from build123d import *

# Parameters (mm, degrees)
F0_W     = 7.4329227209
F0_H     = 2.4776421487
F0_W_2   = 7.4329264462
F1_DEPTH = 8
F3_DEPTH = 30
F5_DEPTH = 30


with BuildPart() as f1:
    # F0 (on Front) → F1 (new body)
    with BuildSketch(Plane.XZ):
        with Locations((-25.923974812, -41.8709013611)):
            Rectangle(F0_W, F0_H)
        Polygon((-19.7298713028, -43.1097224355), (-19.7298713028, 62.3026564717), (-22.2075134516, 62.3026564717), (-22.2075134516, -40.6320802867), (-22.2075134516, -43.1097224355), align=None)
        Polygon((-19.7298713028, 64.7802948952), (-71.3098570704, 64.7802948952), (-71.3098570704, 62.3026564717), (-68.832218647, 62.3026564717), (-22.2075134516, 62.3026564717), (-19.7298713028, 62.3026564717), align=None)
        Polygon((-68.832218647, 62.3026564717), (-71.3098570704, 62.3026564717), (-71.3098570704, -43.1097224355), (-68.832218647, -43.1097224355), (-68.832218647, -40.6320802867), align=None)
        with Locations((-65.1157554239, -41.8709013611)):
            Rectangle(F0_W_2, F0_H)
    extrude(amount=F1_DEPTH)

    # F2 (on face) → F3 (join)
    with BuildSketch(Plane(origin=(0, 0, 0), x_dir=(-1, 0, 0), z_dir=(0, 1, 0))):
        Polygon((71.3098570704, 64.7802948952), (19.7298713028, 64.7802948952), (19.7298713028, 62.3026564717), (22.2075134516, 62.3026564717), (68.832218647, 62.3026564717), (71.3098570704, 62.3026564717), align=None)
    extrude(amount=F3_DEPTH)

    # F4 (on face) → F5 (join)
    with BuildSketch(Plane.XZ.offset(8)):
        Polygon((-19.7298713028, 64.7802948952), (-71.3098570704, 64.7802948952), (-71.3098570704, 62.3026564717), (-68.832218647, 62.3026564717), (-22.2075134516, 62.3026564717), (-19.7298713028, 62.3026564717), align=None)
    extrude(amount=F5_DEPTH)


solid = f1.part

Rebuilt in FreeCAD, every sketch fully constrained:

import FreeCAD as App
import Part
import Sketcher
from FreeCAD import Vector

doc = App.newDocument("Part")
body = doc.addObject("PartDesign::Body", "Body")

sketch1 = doc.addObject("Sketcher::SketchObject", "Sketch")
body.addObject(sketch1)
sketch1.AttachmentSupport = (doc.XZ_Plane, [""])
sketch1.MapMode = "FlatFace"
sketch1.addGeometry(Part.LineSegment(Vector(-29.6, -40.6, 0), Vector(-29.6, -43.1, 0)), False)
sketch1.addGeometry(Part.LineSegment(Vector(-29.6, -43.1, 0), Vector(-22.2, -43.1, 0)), False)
sketch1.addGeometry(Part.LineSegment(Vector(-22.2, -43.1, 0), Vector(-19.7, -43.1, 0)), False)
sketch1.addGeometry(Part.LineSegment(Vector(-19.7, -43.1, 0), Vector(-19.7, 64.8, 0)), False)
sketch1.addGeometry(Part.LineSegment(Vector(-19.7, 64.8, 0), Vector(-71.3, 64.8, 0)), False)
sketch1.addGeometry(Part.LineSegment(Vector(-71.3, 64.8, 0), Vector(-71.3, -43.1, 0)), False)
sketch1.addGeometry(Part.LineSegment(Vector(-71.3, -43.1, 0), Vector(-68.8, -43.1, 0)), False)
sketch1.addGeometry(Part.LineSegment(Vector(-68.8, -43.1, 0), Vector(-61.4, -43.1, 0)), False)
sketch1.addGeometry(Part.LineSegment(Vector(-61.4, -43.1, 0), Vector(-61.4, -40.6, 0)), False)
sketch1.addGeometry(Part.LineSegment(Vector(-61.4, -40.6, 0), Vector(-68.8, -40.6, 0)), False)
sketch1.addGeometry(Part.LineSegment(Vector(-68.8, -40.6, 0), Vector(-68.8, 62.3, 0)), False)
sketch1.addGeometry(Part.LineSegment(Vector(-68.8, 62.3, 0), Vector(-22.2, 62.3, 0)), False)
sketch1.addGeometry(Part.LineSegment(Vector(-22.2, 62.3, 0), Vector(-22.2, -40.6, 0)), False)
sketch1.addGeometry(Part.LineSegment(Vector(-22.2, -40.6, 0), Vector(-29.6, -40.6, 0)), False)
sketch1.addConstraint(Sketcher.Constraint("Coincident", 0, 2, 1, 1))
sketch1.addConstraint(Sketcher.Constraint("Coincident", 1, 2, 2, 1))
sketch1.addConstraint(Sketcher.Constraint("Coincident", 2, 2, 3, 1))
sketch1.addConstraint(Sketcher.Constraint("Coincident", 3, 2, 4, 1))
sketch1.addConstraint(Sketcher.Constraint("Coincident", 4, 2, 5, 1))
sketch1.addConstraint(Sketcher.Constraint("Coincident", 5, 2, 6, 1))
sketch1.addConstraint(Sketcher.Constraint("Coincident", 6, 2, 7, 1))
sketch1.addConstraint(Sketcher.Constraint("Coincident", 7, 2, 8, 1))
sketch1.addConstraint(Sketcher.Constraint("Coincident", 8, 2, 9, 1))
sketch1.addConstraint(Sketcher.Constraint("Coincident", 9, 2, 10, 1))
sketch1.addConstraint(Sketcher.Constraint("Coincident", 10, 2, 11, 1))
sketch1.addConstraint(Sketcher.Constraint("Coincident", 11, 2, 12, 1))
sketch1.addConstraint(Sketcher.Constraint("Coincident", 12, 2, 13, 1))
sketch1.addConstraint(Sketcher.Constraint("Coincident", 13, 2, 0, 1))
sketch1.addConstraint(Sketcher.Constraint("Vertical", 0))
sketch1.addConstraint(Sketcher.Constraint("Horizontal", 1))
sketch1.addConstraint(Sketcher.Constraint("Horizontal", 2))
sketch1.addConstraint(Sketcher.Constraint("Vertical", 3))
sketch1.addConstraint(Sketcher.Constraint("Horizontal", 4))
sketch1.addConstraint(Sketcher.Constraint("Vertical", 5))
sketch1.addConstraint(Sketcher.Constraint("Horizontal", 6))
sketch1.addConstraint(Sketcher.Constraint("Horizontal", 7))
sketch1.addConstraint(Sketcher.Constraint("Vertical", 8))
sketch1.addConstraint(Sketcher.Constraint("Horizontal", 9))
sketch1.addConstraint(Sketcher.Constraint("Vertical", 10))
sketch1.addConstraint(Sketcher.Constraint("Horizontal", 11))
sketch1.addConstraint(Sketcher.Constraint("Vertical", 12))
sketch1.addConstraint(Sketcher.Constraint("Horizontal", 13))
sketch1.addConstraint(Sketcher.Constraint("Horizontal", 2, 2, 5, 2))
sketch1.addConstraint(Sketcher.Constraint("Horizontal", 9, 2, 12, 2))
sketch1.addConstraint(Sketcher.Constraint("Vertical", 6, 2, 9, 2))
sketch1.addConstraint(Sketcher.Constraint("Vertical", 1, 2, 11, 2))
sketch1.addConstraint(Sketcher.Constraint("Equal", 2, 0))
sketch1.addConstraint(Sketcher.Constraint("DistanceX", 6, 1, 6, 2, 2.477638))
sketch1.addConstraint(Sketcher.Constraint("DistanceX", 1, 1, 1, 2, 7.432923))
sketch1.addConstraint(Sketcher.Constraint("DistanceX", 2, 1, 2, 2, 2.477642))
sketch1.addConstraint(Sketcher.Constraint("DistanceX", 4, 2, 4, 1, 51.579986))
sketch1.addConstraint(Sketcher.Constraint("DistanceX", 7, 1, 7, 2, 7.432926))
sketch1.addConstraint(Sketcher.Constraint("DistanceY", 3, 1, 3, 2, 107.890017))
sketch1.addConstraint(Sketcher.Constraint("DistanceY", 10, 1, 10, 2, 102.934737))
sketch1.addConstraint(Sketcher.Constraint("DistanceX", 2, 2, -1, 1, 19.729871))
sketch1.addConstraint(Sketcher.Constraint("DistanceY", 8, 2, -1, 1, 40.63208))
pad1 = doc.addObject("PartDesign::Pad", "Pad")
body.addObject(pad1)
pad1.Profile = sketch1
pad1.Length = 8

sketch2 = doc.addObject("Sketcher::SketchObject", "Sketch001")
body.addObject(sketch2)
sketch2.AttachmentSupport = (doc.XZ_Plane, [""])
sketch2.MapMode = "FlatFace"
sketch2.addGeometry(Part.LineSegment(Vector(-71.3, 64.8, 0), Vector(-19.7, 64.8, 0)), False)
sketch2.addGeometry(Part.LineSegment(Vector(-19.7, 64.8, 0), Vector(-19.7, 62.3, 0)), False)
sketch2.addGeometry(Part.LineSegment(Vector(-19.7, 62.3, 0), Vector(-71.3, 62.3, 0)), False)
sketch2.addGeometry(Part.LineSegment(Vector(-71.3, 62.3, 0), Vector(-71.3, 64.8, 0)), False)
sketch2.addConstraint(Sketcher.Constraint("Coincident", 0, 2, 1, 1))
sketch2.addConstraint(Sketcher.Constraint("Coincident", 1, 2, 2, 1))
sketch2.addConstraint(Sketcher.Constraint("Coincident", 2, 2, 3, 1))
sketch2.addConstraint(Sketcher.Constraint("Coincident", 3, 2, 0, 1))
sketch2.addConstraint(Sketcher.Constraint("Horizontal", 0))
sketch2.addConstraint(Sketcher.Constraint("Vertical", 1))
sketch2.addConstraint(Sketcher.Constraint("Horizontal", 2))
sketch2.addConstraint(Sketcher.Constraint("Vertical", 3))
sketch2.addConstraint(Sketcher.Constraint("DistanceY", 1, 2, 1, 1, 2.477638))
sketch2.addConstraint(Sketcher.Constraint("DistanceX", 0, 1, 0, 2, 51.579986))
sketch2.addConstraint(Sketcher.Constraint("DistanceX", 0, 2, -1, 1, 19.729871))
sketch2.addConstraint(Sketcher.Constraint("DistanceY", -1, 1, 0, 2, 64.780295))
pad2 = doc.addObject("PartDesign::Pad", "Pad001")
body.addObject(pad2)
pad2.Profile = sketch2
pad2.Length = 30
pad2.Reversed = True

sketch3 = doc.addObject("Sketcher::SketchObject", "Sketch002")
body.addObject(sketch3)
sketch3.AttachmentSupport = (doc.XZ_Plane, [""])
sketch3.MapMode = "FlatFace"
sketch3.AttachmentOffset = App.Placement(Vector(0, 0, 8), App.Rotation())
sketch3.addGeometry(Part.LineSegment(Vector(-19.7, 64.8, 0), Vector(-71.3, 64.8, 0)), False)
sketch3.addGeometry(Part.LineSegment(Vector(-71.3, 64.8, 0), Vector(-71.3, 62.3, 0)), False)
sketch3.addGeometry(Part.LineSegment(Vector(-71.3, 62.3, 0), Vector(-19.7, 62.3, 0)), False)
sketch3.addGeometry(Part.LineSegment(Vector(-19.7, 62.3, 0), Vector(-19.7, 64.8, 0)), False)
sketch3.addConstraint(Sketcher.Constraint("Coincident", 0, 2, 1, 1))
sketch3.addConstraint(Sketcher.Constraint("Coincident", 1, 2, 2, 1))
sketch3.addConstraint(Sketcher.Constraint("Coincident", 2, 2, 3, 1))
sketch3.addConstraint(Sketcher.Constraint("Coincident", 3, 2, 0, 1))
sketch3.addConstraint(Sketcher.Constraint("Horizontal", 0))
sketch3.addConstraint(Sketcher.Constraint("Vertical", 1))
sketch3.addConstraint(Sketcher.Constraint("Horizontal", 2))
sketch3.addConstraint(Sketcher.Constraint("Vertical", 3))
sketch3.addConstraint(Sketcher.Constraint("DistanceY", 1, 2, 1, 1, 2.477638))
sketch3.addConstraint(Sketcher.Constraint("DistanceX", 0, 2, 0, 1, 51.579986))
sketch3.addConstraint(Sketcher.Constraint("DistanceX", 2, 2, -1, 1, 19.729871))
sketch3.addConstraint(Sketcher.Constraint("DistanceY", -1, 1, 0, 2, 64.780295))
pad3 = doc.addObject("PartDesign::Pad", "Pad002")
body.addObject(pad3)
pad3.Profile = sketch3
pad3.Length = 30

doc.recompute()
